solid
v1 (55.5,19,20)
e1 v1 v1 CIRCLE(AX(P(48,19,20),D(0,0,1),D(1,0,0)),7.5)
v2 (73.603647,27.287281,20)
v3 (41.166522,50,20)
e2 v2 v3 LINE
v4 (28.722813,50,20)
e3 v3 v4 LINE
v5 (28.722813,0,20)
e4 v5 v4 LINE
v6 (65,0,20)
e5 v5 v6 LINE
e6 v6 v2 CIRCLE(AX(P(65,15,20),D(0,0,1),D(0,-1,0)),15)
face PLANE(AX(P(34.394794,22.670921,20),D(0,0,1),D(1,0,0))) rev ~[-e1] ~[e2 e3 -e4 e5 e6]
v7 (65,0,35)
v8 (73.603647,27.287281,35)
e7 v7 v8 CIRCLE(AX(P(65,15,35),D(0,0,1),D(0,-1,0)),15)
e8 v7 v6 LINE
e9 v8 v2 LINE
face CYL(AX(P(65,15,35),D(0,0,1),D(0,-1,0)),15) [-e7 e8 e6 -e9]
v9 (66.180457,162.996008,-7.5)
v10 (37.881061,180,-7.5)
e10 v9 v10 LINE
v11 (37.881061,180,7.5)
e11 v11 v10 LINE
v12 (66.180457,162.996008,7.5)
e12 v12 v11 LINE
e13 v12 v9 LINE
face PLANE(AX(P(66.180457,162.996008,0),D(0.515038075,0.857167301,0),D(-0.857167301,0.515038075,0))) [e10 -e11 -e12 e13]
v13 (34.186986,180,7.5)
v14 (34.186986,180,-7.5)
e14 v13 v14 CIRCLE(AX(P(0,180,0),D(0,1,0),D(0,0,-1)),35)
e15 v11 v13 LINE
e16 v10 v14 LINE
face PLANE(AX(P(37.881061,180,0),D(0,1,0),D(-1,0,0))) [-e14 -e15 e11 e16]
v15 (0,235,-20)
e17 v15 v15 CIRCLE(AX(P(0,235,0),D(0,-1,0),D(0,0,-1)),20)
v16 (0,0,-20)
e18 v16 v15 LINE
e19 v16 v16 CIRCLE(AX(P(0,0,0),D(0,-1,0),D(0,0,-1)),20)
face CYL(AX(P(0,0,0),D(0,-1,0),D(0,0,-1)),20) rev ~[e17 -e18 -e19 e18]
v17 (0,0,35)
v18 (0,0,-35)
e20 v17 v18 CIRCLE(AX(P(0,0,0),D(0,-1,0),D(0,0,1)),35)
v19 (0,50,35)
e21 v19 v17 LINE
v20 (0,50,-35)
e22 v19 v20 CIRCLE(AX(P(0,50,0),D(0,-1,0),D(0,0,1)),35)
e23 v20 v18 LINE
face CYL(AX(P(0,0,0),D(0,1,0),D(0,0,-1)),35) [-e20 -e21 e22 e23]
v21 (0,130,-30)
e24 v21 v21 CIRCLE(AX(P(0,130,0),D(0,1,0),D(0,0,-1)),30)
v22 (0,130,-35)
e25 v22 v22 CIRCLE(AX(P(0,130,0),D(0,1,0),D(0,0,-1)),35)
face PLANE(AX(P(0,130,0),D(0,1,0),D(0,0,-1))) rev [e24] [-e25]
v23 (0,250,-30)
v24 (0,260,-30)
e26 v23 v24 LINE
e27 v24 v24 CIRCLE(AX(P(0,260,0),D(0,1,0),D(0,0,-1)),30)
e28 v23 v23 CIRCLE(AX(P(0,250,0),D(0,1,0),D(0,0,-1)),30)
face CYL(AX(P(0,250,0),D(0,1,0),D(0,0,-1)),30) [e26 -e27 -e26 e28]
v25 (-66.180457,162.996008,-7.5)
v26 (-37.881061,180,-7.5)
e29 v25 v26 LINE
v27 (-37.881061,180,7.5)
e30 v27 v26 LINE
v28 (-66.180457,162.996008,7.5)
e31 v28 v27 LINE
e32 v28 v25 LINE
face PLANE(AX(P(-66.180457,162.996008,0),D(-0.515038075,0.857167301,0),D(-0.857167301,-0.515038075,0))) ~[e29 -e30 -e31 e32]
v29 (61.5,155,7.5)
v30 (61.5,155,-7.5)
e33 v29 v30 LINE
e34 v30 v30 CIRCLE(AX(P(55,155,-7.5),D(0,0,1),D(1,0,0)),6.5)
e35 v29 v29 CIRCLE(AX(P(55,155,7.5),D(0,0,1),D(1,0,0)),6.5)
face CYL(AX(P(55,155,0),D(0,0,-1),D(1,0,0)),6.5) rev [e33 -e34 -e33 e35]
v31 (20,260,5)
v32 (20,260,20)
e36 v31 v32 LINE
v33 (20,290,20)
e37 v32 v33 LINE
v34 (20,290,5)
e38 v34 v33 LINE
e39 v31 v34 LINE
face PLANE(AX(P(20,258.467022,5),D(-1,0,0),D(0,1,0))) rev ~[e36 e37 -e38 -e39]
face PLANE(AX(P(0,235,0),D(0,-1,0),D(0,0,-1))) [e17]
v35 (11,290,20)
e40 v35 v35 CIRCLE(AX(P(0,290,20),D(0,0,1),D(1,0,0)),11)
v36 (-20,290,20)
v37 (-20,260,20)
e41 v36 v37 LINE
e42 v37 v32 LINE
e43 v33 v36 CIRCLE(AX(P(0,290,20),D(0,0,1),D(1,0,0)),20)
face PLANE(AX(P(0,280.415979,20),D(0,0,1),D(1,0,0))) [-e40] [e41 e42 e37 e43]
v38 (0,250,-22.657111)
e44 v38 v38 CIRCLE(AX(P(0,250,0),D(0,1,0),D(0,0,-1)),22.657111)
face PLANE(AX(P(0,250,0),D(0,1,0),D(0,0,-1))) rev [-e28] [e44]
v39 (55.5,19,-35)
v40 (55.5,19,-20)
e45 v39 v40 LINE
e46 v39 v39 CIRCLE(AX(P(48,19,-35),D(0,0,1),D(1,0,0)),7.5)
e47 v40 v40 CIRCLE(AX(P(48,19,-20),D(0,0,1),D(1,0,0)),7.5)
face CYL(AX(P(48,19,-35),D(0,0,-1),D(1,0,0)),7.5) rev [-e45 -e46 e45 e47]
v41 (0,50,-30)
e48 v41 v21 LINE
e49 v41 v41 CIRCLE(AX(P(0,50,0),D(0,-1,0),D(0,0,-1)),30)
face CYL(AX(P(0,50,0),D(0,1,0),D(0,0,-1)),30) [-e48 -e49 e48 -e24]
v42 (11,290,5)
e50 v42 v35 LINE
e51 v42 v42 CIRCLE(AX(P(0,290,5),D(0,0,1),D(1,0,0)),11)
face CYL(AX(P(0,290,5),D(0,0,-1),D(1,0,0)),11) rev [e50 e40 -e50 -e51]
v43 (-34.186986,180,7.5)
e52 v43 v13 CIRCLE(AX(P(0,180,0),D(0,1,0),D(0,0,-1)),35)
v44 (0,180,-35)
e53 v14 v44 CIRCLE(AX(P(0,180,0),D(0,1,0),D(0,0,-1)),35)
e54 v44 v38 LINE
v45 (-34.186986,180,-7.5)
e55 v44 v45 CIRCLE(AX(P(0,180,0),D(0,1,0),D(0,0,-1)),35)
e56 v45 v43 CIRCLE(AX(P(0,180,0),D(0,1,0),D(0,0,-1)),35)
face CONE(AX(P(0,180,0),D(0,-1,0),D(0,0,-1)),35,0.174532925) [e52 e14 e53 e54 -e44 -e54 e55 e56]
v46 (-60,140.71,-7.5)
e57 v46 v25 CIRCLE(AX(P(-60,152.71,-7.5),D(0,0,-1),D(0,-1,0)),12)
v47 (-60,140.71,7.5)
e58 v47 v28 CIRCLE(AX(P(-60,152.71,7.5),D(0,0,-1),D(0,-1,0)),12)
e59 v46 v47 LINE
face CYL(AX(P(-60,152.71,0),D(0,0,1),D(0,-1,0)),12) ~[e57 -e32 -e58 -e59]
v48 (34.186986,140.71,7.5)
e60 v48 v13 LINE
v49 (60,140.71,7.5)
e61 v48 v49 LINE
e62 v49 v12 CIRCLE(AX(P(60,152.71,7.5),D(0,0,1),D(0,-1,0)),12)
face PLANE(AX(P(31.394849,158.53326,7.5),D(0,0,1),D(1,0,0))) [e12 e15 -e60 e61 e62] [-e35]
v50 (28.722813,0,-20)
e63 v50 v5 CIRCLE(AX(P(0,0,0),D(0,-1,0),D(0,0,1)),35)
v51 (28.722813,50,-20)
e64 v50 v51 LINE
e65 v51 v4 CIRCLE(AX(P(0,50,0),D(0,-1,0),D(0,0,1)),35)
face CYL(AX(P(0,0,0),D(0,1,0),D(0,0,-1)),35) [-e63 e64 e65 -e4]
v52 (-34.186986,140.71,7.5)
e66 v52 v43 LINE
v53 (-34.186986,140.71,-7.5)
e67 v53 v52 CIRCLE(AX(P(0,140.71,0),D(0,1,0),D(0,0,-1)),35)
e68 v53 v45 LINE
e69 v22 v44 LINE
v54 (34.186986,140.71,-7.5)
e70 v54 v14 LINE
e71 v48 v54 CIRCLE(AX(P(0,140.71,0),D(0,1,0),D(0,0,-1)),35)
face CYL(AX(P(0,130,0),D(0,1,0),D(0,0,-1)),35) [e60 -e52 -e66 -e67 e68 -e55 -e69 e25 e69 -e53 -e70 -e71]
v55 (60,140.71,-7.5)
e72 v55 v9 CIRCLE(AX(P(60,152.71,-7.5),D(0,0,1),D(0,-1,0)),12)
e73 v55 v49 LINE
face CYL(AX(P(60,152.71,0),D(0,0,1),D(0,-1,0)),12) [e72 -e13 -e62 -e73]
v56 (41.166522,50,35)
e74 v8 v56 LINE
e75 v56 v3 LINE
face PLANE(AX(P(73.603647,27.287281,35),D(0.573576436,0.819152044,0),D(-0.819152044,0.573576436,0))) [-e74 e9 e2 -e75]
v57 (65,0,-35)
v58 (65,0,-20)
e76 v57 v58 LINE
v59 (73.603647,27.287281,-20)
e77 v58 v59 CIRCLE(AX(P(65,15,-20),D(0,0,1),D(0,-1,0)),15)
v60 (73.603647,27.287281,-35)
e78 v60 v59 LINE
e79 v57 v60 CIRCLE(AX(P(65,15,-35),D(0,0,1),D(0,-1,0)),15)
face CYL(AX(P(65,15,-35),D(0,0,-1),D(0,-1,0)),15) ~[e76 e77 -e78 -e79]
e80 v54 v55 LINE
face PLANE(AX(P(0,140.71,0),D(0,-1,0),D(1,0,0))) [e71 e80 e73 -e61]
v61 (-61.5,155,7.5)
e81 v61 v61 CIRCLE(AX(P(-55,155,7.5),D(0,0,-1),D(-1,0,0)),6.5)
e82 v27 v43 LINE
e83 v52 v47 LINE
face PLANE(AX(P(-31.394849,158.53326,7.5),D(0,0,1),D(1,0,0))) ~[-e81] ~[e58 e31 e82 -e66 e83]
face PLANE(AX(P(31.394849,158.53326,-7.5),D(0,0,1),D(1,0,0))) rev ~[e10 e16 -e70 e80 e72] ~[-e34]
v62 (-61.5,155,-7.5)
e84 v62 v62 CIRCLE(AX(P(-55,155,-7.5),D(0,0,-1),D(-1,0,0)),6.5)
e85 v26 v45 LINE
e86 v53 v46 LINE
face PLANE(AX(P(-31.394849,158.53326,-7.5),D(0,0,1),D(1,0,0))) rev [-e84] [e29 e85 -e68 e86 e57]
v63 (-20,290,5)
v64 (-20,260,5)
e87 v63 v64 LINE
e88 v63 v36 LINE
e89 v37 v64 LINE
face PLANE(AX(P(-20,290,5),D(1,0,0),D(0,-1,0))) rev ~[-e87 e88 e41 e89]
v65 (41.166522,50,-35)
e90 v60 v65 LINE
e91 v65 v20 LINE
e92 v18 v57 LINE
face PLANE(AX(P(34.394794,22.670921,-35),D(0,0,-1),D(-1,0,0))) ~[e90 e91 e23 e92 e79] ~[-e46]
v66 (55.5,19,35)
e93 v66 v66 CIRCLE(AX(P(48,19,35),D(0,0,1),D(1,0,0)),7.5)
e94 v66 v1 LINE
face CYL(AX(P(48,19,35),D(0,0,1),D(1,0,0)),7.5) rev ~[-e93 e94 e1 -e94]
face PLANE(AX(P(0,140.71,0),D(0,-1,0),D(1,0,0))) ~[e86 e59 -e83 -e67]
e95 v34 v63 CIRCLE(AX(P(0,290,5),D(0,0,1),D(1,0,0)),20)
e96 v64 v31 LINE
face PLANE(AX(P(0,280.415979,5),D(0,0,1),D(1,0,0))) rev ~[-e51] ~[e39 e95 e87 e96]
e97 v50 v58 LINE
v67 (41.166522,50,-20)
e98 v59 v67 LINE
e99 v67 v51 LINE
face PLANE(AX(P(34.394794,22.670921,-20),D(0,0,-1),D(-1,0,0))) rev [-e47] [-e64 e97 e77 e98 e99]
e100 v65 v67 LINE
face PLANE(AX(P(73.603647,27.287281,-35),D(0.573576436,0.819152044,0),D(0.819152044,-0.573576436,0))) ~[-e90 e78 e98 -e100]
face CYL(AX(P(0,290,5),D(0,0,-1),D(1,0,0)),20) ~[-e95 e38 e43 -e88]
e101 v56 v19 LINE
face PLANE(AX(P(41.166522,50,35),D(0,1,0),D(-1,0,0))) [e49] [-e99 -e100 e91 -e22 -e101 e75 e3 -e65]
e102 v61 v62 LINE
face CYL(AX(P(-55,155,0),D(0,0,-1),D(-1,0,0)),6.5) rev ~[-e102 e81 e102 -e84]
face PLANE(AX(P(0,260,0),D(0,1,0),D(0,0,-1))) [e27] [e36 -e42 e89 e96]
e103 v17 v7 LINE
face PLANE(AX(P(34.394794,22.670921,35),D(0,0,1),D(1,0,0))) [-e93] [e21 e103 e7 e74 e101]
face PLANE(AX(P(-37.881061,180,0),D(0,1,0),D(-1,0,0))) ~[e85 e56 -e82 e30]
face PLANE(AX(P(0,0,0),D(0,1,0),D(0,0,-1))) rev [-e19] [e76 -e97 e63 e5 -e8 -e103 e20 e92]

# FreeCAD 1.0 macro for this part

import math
import FreeCAD as App
import Part
import Sketcher

V = App.Vector
Q = App.Units.Quantity

doc = App.newDocument("Part")
body = doc.addObject("PartDesign::Body", "Body")

sketch1 = body.newObject("Sketcher::SketchObject", "Sketch")
sketch1.AttachmentSupport = (doc.getObject("XY_Plane"), [""])
sketch1.MapMode = "FlatFace"
sketch1.addGeometry([
    Part.LineSegment(V(0, 0, 0), V(35, 0, 0)),
    Part.LineSegment(V(35, 0, 0), V(35, 50, 0)),
    Part.LineSegment(V(35, 50, 0), V(30, 50, 0)),
    Part.LineSegment(V(30, 50, 0), V(30, 130, 0)),
    Part.LineSegment(V(30, 130, 0), V(35, 130, 0)),
    Part.LineSegment(V(35, 130, 0), V(35, 180, 0)),
    Part.LineSegment(V(35, 180, 0), V(22.657111, 250, 0)),
    Part.LineSegment(V(22.657111, 250, 0), V(30, 250, 0)),
    Part.LineSegment(V(30, 250, 0), V(30, 260, 0)),
    Part.LineSegment(V(30, 260, 0), V(0, 260, 0)),
    Part.LineSegment(V(0, 260, 0), V(0, 0, 0)),
], False)
sketch1.addConstraint([
    Sketcher.Constraint("Coincident", 0, 2, 1, 1),
    Sketcher.Constraint("Coincident", 1, 2, 2, 1),
    Sketcher.Constraint("Coincident", 2, 2, 3, 1),
    Sketcher.Constraint("Coincident", 3, 2, 4, 1),
    Sketcher.Constraint("Coincident", 4, 2, 5, 1),
    Sketcher.Constraint("Coincident", 5, 2, 6, 1),
    Sketcher.Constraint("Coincident", 6, 2, 7, 1),
    Sketcher.Constraint("Coincident", 7, 2, 8, 1),
    Sketcher.Constraint("Coincident", 8, 2, 9, 1),
    Sketcher.Constraint("Coincident", 9, 2, 10, 1),
    Sketcher.Constraint("Coincident", 10, 2, 0, 1),
    Sketcher.Constraint("Horizontal", 0),
    Sketcher.Constraint("Vertical", 1),
    Sketcher.Constraint("Horizontal", 2),
    Sketcher.Constraint("Vertical", 3),
    Sketcher.Constraint("Horizontal", 4),
    Sketcher.Constraint("Vertical", 5),
    Sketcher.Constraint("Horizontal", 7),
    Sketcher.Constraint("Vertical", 8),
    Sketcher.Constraint("Horizontal", 9),
    Sketcher.Constraint("Vertical", 10),
    Sketcher.Constraint("Coincident", 10, 2, -1, 1),
    Sketcher.Constraint("Vertical", 1, 2, 4, 2),
    Sketcher.Constraint("Vertical", 3, 2, 7, 2),
    Sketcher.Constraint("Equal", 1, 5),
    Sketcher.Constraint("DistanceX", 0, 1, 0, 2, Q("35 mm")),
    Sketcher.Constraint("DistanceX", 2, 2, 2, 1, Q("5 mm")),
    Sketcher.Constraint("DistanceY", 1, 1, 1, 2, Q("50 mm")),
    Sketcher.Constraint("DistanceY", 3, 1, 3, 2, Q("80 mm")),
    Sketcher.Constraint("DistanceY", 8, 1, 8, 2, Q("10 mm")),
    Sketcher.Constraint("DistanceY", 10, 2, 10, 1, Q("260 mm")),
    Sketcher.Constraint("Angle", 6, Q("100 deg")),
])
revolution = body.newObject("PartDesign::Revolution", "Revolution")
revolution.Profile = sketch1
revolution.ReferenceAxis = (sketch1, ["V_Axis"])
revolution.Angle = 360

sketch2 = body.newObject("Sketcher::SketchObject", "Sketch001")
sketch2.AttachmentSupport = (doc.getObject("XY_Plane"), [""])
sketch2.MapMode = "FlatFace"
sketch2.AttachmentOffset = App.Placement(V(0, 0, 35), App.Rotation())
sketch2.addGeometry([
    Part.LineSegment(V(0, 0, 0), V(65, 0, 0)),
    Part.ArcOfCircle(Part.Circle(V(65, 15, 0), V(0, 0, 1), 15), math.radians(-90), math.radians(55)),
    Part.LineSegment(V(73.603647, 27.287281, 0), V(41.166522, 50, 0)),
    Part.LineSegment(V(41.166522, 50, 0), V(0, 50, 0)),
    Part.LineSegment(V(0, 50, 0), V(0, 0, 0)),
    Part.Circle(V(48, 19, 0), V(0, 0, 1), 7.5),
], False)
sketch2.addConstraint([
    Sketcher.Constraint("Tangent", 0, 2, 1, 1),
    Sketcher.Constraint("Tangent", 1, 2, 2, 1),
    Sketcher.Constraint("Coincident", 2, 2, 3, 1),
    Sketcher.Constraint("Coincident", 3, 2, 4, 1),
    Sketcher.Constraint("Coincident", 4, 2, 0, 1),
    Sketcher.Constraint("Horizontal", 0),
    Sketcher.Constraint("Horizontal", 3),
    Sketcher.Constraint("Vertical", 4),
    Sketcher.Constraint("Coincident", 4, 2, -1, 1),
    Sketcher.Constraint("Diameter", 5, Q("15 mm")),
    Sketcher.Constraint("Radius", 1, Q("15 mm")),
    Sketcher.Constraint("DistanceX", 0, 1, 0, 2, Q("65 mm")),
    Sketcher.Constraint("DistanceY", 4, 2, 4, 1, Q("50 mm")),
    Sketcher.Constraint("Angle", 2, Q("145 deg")),
    Sketcher.Constraint("DistanceX", -1, 1, 5, 3, Q("48 mm")),
    Sketcher.Constraint("DistanceY", -1, 1, 5, 3, Q("19 mm")),
])
pad1 = body.newObject("PartDesign::Pad", "Pad")
pad1.Profile = sketch2
pad1.Length = 15
pad1.Reversed = True
doc.recompute()

mirrored = body.newObject("PartDesign::Mirrored", "Mirrored")
mirrored.Originals = [pad1]
mirrored.MirrorPlane = (doc.getObject("XY_Plane"), [""])
body.Tip = mirrored

sketch3 = body.newObject("Sketcher::SketchObject", "Sketch002")
sketch3.AttachmentSupport = (doc.getObject("XY_Plane"), [""])
sketch3.MapMode = "FlatFace"
sketch3.addGeometry([
    Part.LineSegment(V(0, 180, 0), V(0, 140.71, 0)),
    Part.LineSegment(V(0, 140.71, 0), V(60, 140.71, 0)),
    Part.ArcOfCircle(Part.Circle(V(60, 152.71, 0), V(0, 0, 1), 12), math.radians(-90), math.radians(59)),
    Part.LineSegment(V(66.180457, 162.996008, 0), V(37.881061, 180, 0)),
    Part.LineSegment(V(37.881061, 180, 0), V(0, 180, 0)),
    Part.Circle(V(55, 155, 0), V(0, 0, 1), 6.5),
], False)
sketch3.addConstraint([
    Sketcher.Constraint("Coincident", 0, 2, 1, 1),
    Sketcher.Constraint("Tangent", 1, 2, 2, 1),
    Sketcher.Constraint("Tangent", 2, 2, 3, 1),
    Sketcher.Constraint("Coincident", 3, 2, 4, 1),
    Sketcher.Constraint("Coincident", 4, 2, 0, 1),
    Sketcher.Constraint("Vertical", 0),
    Sketcher.Constraint("Horizontal", 1),
    Sketcher.Constraint("Horizontal", 4),
    Sketcher.Constraint("PointOnObject", 0, 2, -2),
    Sketcher.Constraint("Diameter", 5, Q("13 mm")),
    Sketcher.Constraint("Radius", 2, Q("12 mm")),
    Sketcher.Constraint("DistanceX", 1, 1, 1, 2, Q("60 mm")),
    Sketcher.Constraint("Angle", 3, Q("149 deg")),
    Sketcher.Constraint("DistanceX", -1, 1, 5, 3, Q("55 mm")),
    Sketcher.Constraint("DistanceY", -1, 1, 5, 3, Q("155 mm")),
    Sketcher.Constraint("DistanceY", -1, 1, 3, 2, Q("180 mm")),
    Sketcher.Constraint("DistanceY", 0, 2, 0, 1, Q("39.29 mm")),
])
pad2 = body.newObject("PartDesign::Pad", "Pad001")
pad2.Profile = sketch3
pad2.Length = 15
pad2.Midplane = True
doc.recompute()

mirrored2 = body.newObject("PartDesign::Mirrored", "Mirrored001")
mirrored2.Originals = [pad2]
mirrored2.MirrorPlane = (doc.getObject("YZ_Plane"), [""])
body.Tip = mirrored2

sketch4 = body.newObject("Sketcher::SketchObject", "Sketch003")
sketch4.AttachmentSupport = (doc.getObject("XY_Plane"), [""])
sketch4.MapMode = "FlatFace"
sketch4.AttachmentOffset = App.Placement(V(0, 0, 5), App.Rotation())
sketch4.addGeometry([
    Part.LineSegment(V(-20, 290, 0), V(-20, 258.467022, 0)),
    Part.LineSegment(V(-20, 258.467022, 0), V(20, 258.467022, 0)),
    Part.LineSegment(V(20, 258.467022, 0), V(20, 290, 0)),
    Part.ArcOfCircle(Part.Circle(V(0, 290, 0), V(0, 0, 1), 20), math.radians(0), math.radians(180)),
    Part.Circle(V(0, 290, 0), V(0, 0, 1), 11),
], False)
sketch4.addConstraint([
    Sketcher.Constraint("Coincident", 0, 2, 1, 1),
    Sketcher.Constraint("Coincident", 1, 2, 2, 1),
    Sketcher.Constraint("Tangent", 2, 2, 3, 1),
    Sketcher.Constraint("Tangent", 3, 2, 0, 1),
    Sketcher.Constraint("Vertical", 0),
    Sketcher.Constraint("Horizontal", 1),
    Sketcher.Constraint("Vertical", 2),
    Sketcher.Constraint("Coincident", 4, 3, 3, 3),
    Sketcher.Constraint("PointOnObject", 3, 3, -2),
    Sketcher.Constraint("Diameter", 4, Q("22 mm")),
    Sketcher.Constraint("Radius", 3, Q("20 mm")),
    Sketcher.Constraint("DistanceY", -1, 1, 3, 3, Q("290 mm")),
    Sketcher.Constraint("DistanceY", 0, 2, 0, 1, Q("31.532978 mm")),
])
pad3 = body.newObject("PartDesign::Pad", "Pad002")
pad3.Profile = sketch4
pad3.Length = 15

sketch5 = body.newObject("Sketcher::SketchObject", "Sketch004")
sketch5.AttachmentSupport = (doc.getObject("XZ_Plane"), [""])
sketch5.MapMode = "FlatFace"
sketch5.addGeometry(Part.Circle(V(0, 0, 0), V(0, 0, 1), 20), False)
sketch5.addConstraint([
    Sketcher.Constraint("Coincident", 0, 3, -1, 1),
    Sketcher.Constraint("Diameter", 0, Q("40 mm")),
])
pocket1 = body.newObject("PartDesign::Pocket", "Pocket")
pocket1.Profile = sketch5
pocket1.Length = 235

doc.recompute()
